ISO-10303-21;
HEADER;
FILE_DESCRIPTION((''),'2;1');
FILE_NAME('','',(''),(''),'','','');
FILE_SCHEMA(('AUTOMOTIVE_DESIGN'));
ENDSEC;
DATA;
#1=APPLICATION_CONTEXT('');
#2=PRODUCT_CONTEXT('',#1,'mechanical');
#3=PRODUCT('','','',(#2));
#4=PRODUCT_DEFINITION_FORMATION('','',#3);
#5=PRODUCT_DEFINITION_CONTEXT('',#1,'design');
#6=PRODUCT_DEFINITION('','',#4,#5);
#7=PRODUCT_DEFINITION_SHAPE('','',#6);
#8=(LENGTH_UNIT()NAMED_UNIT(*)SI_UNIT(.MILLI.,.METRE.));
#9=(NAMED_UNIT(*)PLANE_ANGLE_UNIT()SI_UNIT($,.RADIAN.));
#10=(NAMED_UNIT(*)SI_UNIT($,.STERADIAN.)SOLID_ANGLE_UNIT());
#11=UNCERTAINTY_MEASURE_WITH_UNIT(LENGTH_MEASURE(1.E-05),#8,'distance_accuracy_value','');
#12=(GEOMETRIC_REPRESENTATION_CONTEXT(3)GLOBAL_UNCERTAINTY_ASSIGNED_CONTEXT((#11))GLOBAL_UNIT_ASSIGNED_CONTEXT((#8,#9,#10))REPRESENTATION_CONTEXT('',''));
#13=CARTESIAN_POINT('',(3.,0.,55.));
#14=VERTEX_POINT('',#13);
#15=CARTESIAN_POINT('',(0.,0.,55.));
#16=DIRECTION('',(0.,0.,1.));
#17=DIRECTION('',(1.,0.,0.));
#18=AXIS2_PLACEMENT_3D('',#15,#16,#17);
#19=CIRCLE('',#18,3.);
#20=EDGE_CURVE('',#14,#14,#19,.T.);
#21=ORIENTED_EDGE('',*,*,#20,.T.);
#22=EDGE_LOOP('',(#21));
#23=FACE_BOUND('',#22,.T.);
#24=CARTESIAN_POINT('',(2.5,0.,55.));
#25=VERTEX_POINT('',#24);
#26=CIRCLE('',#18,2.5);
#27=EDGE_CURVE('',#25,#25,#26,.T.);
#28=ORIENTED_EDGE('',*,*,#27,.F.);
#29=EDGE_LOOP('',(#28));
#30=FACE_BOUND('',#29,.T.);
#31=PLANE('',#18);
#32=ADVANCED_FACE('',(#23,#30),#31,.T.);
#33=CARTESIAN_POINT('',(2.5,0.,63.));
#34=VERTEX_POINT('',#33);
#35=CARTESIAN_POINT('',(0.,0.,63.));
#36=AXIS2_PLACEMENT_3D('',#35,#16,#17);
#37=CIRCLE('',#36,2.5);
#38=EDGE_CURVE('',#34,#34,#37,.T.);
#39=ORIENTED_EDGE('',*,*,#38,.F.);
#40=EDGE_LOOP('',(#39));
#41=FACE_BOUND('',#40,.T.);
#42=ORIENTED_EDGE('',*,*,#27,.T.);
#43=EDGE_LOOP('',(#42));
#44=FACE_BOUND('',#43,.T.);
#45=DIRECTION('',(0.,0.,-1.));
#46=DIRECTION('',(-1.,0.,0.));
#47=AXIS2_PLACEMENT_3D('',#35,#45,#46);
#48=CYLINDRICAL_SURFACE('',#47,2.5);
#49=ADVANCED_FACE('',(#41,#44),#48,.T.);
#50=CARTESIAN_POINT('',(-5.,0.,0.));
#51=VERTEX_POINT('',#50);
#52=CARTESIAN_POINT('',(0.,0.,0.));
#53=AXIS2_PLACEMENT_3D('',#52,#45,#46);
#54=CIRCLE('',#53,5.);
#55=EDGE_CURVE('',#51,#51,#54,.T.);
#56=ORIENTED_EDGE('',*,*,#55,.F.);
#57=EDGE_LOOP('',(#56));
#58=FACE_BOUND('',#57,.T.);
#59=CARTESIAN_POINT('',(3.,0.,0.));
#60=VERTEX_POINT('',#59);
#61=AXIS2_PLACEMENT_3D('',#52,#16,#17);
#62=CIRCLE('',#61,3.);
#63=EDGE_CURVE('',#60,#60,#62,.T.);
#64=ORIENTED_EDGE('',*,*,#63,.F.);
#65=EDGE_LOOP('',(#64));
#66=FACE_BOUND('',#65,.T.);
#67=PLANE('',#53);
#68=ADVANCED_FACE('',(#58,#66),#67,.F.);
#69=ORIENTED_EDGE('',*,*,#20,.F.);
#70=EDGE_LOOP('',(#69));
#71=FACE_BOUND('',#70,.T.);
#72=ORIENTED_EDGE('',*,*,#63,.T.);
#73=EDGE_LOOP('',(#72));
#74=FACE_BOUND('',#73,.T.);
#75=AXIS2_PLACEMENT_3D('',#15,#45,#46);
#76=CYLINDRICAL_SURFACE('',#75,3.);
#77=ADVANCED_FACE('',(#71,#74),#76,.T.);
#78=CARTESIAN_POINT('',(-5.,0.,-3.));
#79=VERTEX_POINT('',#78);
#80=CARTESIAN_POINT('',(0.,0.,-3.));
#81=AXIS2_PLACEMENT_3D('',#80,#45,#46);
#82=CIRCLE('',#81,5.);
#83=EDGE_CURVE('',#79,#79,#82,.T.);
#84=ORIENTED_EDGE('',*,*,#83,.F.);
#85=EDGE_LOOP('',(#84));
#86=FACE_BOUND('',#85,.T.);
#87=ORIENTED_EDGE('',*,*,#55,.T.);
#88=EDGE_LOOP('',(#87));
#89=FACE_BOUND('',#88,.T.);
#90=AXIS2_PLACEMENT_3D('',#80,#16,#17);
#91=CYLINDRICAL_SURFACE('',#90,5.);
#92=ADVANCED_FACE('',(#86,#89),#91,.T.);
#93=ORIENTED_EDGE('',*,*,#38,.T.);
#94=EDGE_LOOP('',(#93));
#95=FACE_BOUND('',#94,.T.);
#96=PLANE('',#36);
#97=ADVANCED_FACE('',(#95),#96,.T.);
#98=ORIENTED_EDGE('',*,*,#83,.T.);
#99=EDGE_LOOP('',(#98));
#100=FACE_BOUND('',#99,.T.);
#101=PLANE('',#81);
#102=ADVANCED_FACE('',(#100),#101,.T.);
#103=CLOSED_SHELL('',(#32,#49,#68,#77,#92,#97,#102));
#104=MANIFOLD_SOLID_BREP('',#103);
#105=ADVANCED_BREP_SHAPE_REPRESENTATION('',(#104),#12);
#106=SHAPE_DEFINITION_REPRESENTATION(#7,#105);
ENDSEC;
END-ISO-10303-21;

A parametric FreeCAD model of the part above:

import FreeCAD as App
import Part
import Sketcher
from FreeCAD import Vector

doc = App.newDocument("Part")
body = doc.addObject("PartDesign::Body", "Body")

sketch1 = doc.addObject("Sketcher::SketchObject", "Sketch")
body.addObject(sketch1)
sketch1.AttachmentSupport = (doc.XY_Plane, [""])
sketch1.MapMode = "FlatFace"
sketch1.addGeometry(Part.Circle(Vector(0, 0, 0), Vector(0, 0, 1), 3), False)
sketch1.addConstraint(Sketcher.Constraint("Coincident", 0, 3, -1, 1))
sketch1.addConstraint(Sketcher.Constraint("Diameter", 0, 6.0))
pad1 = doc.addObject("PartDesign::Pad", "Pad")
body.addObject(pad1)
pad1.Profile = sketch1
pad1.Length = 55

sketch2 = doc.addObject("Sketcher::SketchObject", "Sketch001")
body.addObject(sketch2)
sketch2.AttachmentSupport = (doc.XY_Plane, [""])
sketch2.MapMode = "FlatFace"
sketch2.AttachmentOffset = App.Placement(Vector(0, 0, 55), App.Rotation())
sketch2.addGeometry(Part.Circle(Vector(0, 0, 0), Vector(0, 0, 1), 2.5), False)
sketch2.addConstraint(Sketcher.Constraint("Coincident", 0, 3, -1, 1))
sketch2.addConstraint(Sketcher.Constraint("Diameter", 0, 5.0))
pad2 = doc.addObject("PartDesign::Pad", "Pad001")
body.addObject(pad2)
pad2.Profile = sketch2
pad2.Length = 8

sketch3 = doc.addObject("Sketcher::SketchObject", "Sketch002")
body.addObject(sketch3)
sketch3.AttachmentSupport = (doc.XY_Plane, [""])
sketch3.MapMode = "FlatFace"
sketch3.addGeometry(Part.Circle(Vector(0, 0, 0), Vector(0, 0, 1), 5), False)
sketch3.addConstraint(Sketcher.Constraint("Coincident", 0, 3, -1, 1))
sketch3.addConstraint(Sketcher.Constraint("Diameter", 0, 10.0))
pad3 = doc.addObject("PartDesign::Pad", "Pad002")
body.addObject(pad3)
pad3.Profile = sketch3
pad3.Length = 3
pad3.Reversed = True

doc.recompute()
